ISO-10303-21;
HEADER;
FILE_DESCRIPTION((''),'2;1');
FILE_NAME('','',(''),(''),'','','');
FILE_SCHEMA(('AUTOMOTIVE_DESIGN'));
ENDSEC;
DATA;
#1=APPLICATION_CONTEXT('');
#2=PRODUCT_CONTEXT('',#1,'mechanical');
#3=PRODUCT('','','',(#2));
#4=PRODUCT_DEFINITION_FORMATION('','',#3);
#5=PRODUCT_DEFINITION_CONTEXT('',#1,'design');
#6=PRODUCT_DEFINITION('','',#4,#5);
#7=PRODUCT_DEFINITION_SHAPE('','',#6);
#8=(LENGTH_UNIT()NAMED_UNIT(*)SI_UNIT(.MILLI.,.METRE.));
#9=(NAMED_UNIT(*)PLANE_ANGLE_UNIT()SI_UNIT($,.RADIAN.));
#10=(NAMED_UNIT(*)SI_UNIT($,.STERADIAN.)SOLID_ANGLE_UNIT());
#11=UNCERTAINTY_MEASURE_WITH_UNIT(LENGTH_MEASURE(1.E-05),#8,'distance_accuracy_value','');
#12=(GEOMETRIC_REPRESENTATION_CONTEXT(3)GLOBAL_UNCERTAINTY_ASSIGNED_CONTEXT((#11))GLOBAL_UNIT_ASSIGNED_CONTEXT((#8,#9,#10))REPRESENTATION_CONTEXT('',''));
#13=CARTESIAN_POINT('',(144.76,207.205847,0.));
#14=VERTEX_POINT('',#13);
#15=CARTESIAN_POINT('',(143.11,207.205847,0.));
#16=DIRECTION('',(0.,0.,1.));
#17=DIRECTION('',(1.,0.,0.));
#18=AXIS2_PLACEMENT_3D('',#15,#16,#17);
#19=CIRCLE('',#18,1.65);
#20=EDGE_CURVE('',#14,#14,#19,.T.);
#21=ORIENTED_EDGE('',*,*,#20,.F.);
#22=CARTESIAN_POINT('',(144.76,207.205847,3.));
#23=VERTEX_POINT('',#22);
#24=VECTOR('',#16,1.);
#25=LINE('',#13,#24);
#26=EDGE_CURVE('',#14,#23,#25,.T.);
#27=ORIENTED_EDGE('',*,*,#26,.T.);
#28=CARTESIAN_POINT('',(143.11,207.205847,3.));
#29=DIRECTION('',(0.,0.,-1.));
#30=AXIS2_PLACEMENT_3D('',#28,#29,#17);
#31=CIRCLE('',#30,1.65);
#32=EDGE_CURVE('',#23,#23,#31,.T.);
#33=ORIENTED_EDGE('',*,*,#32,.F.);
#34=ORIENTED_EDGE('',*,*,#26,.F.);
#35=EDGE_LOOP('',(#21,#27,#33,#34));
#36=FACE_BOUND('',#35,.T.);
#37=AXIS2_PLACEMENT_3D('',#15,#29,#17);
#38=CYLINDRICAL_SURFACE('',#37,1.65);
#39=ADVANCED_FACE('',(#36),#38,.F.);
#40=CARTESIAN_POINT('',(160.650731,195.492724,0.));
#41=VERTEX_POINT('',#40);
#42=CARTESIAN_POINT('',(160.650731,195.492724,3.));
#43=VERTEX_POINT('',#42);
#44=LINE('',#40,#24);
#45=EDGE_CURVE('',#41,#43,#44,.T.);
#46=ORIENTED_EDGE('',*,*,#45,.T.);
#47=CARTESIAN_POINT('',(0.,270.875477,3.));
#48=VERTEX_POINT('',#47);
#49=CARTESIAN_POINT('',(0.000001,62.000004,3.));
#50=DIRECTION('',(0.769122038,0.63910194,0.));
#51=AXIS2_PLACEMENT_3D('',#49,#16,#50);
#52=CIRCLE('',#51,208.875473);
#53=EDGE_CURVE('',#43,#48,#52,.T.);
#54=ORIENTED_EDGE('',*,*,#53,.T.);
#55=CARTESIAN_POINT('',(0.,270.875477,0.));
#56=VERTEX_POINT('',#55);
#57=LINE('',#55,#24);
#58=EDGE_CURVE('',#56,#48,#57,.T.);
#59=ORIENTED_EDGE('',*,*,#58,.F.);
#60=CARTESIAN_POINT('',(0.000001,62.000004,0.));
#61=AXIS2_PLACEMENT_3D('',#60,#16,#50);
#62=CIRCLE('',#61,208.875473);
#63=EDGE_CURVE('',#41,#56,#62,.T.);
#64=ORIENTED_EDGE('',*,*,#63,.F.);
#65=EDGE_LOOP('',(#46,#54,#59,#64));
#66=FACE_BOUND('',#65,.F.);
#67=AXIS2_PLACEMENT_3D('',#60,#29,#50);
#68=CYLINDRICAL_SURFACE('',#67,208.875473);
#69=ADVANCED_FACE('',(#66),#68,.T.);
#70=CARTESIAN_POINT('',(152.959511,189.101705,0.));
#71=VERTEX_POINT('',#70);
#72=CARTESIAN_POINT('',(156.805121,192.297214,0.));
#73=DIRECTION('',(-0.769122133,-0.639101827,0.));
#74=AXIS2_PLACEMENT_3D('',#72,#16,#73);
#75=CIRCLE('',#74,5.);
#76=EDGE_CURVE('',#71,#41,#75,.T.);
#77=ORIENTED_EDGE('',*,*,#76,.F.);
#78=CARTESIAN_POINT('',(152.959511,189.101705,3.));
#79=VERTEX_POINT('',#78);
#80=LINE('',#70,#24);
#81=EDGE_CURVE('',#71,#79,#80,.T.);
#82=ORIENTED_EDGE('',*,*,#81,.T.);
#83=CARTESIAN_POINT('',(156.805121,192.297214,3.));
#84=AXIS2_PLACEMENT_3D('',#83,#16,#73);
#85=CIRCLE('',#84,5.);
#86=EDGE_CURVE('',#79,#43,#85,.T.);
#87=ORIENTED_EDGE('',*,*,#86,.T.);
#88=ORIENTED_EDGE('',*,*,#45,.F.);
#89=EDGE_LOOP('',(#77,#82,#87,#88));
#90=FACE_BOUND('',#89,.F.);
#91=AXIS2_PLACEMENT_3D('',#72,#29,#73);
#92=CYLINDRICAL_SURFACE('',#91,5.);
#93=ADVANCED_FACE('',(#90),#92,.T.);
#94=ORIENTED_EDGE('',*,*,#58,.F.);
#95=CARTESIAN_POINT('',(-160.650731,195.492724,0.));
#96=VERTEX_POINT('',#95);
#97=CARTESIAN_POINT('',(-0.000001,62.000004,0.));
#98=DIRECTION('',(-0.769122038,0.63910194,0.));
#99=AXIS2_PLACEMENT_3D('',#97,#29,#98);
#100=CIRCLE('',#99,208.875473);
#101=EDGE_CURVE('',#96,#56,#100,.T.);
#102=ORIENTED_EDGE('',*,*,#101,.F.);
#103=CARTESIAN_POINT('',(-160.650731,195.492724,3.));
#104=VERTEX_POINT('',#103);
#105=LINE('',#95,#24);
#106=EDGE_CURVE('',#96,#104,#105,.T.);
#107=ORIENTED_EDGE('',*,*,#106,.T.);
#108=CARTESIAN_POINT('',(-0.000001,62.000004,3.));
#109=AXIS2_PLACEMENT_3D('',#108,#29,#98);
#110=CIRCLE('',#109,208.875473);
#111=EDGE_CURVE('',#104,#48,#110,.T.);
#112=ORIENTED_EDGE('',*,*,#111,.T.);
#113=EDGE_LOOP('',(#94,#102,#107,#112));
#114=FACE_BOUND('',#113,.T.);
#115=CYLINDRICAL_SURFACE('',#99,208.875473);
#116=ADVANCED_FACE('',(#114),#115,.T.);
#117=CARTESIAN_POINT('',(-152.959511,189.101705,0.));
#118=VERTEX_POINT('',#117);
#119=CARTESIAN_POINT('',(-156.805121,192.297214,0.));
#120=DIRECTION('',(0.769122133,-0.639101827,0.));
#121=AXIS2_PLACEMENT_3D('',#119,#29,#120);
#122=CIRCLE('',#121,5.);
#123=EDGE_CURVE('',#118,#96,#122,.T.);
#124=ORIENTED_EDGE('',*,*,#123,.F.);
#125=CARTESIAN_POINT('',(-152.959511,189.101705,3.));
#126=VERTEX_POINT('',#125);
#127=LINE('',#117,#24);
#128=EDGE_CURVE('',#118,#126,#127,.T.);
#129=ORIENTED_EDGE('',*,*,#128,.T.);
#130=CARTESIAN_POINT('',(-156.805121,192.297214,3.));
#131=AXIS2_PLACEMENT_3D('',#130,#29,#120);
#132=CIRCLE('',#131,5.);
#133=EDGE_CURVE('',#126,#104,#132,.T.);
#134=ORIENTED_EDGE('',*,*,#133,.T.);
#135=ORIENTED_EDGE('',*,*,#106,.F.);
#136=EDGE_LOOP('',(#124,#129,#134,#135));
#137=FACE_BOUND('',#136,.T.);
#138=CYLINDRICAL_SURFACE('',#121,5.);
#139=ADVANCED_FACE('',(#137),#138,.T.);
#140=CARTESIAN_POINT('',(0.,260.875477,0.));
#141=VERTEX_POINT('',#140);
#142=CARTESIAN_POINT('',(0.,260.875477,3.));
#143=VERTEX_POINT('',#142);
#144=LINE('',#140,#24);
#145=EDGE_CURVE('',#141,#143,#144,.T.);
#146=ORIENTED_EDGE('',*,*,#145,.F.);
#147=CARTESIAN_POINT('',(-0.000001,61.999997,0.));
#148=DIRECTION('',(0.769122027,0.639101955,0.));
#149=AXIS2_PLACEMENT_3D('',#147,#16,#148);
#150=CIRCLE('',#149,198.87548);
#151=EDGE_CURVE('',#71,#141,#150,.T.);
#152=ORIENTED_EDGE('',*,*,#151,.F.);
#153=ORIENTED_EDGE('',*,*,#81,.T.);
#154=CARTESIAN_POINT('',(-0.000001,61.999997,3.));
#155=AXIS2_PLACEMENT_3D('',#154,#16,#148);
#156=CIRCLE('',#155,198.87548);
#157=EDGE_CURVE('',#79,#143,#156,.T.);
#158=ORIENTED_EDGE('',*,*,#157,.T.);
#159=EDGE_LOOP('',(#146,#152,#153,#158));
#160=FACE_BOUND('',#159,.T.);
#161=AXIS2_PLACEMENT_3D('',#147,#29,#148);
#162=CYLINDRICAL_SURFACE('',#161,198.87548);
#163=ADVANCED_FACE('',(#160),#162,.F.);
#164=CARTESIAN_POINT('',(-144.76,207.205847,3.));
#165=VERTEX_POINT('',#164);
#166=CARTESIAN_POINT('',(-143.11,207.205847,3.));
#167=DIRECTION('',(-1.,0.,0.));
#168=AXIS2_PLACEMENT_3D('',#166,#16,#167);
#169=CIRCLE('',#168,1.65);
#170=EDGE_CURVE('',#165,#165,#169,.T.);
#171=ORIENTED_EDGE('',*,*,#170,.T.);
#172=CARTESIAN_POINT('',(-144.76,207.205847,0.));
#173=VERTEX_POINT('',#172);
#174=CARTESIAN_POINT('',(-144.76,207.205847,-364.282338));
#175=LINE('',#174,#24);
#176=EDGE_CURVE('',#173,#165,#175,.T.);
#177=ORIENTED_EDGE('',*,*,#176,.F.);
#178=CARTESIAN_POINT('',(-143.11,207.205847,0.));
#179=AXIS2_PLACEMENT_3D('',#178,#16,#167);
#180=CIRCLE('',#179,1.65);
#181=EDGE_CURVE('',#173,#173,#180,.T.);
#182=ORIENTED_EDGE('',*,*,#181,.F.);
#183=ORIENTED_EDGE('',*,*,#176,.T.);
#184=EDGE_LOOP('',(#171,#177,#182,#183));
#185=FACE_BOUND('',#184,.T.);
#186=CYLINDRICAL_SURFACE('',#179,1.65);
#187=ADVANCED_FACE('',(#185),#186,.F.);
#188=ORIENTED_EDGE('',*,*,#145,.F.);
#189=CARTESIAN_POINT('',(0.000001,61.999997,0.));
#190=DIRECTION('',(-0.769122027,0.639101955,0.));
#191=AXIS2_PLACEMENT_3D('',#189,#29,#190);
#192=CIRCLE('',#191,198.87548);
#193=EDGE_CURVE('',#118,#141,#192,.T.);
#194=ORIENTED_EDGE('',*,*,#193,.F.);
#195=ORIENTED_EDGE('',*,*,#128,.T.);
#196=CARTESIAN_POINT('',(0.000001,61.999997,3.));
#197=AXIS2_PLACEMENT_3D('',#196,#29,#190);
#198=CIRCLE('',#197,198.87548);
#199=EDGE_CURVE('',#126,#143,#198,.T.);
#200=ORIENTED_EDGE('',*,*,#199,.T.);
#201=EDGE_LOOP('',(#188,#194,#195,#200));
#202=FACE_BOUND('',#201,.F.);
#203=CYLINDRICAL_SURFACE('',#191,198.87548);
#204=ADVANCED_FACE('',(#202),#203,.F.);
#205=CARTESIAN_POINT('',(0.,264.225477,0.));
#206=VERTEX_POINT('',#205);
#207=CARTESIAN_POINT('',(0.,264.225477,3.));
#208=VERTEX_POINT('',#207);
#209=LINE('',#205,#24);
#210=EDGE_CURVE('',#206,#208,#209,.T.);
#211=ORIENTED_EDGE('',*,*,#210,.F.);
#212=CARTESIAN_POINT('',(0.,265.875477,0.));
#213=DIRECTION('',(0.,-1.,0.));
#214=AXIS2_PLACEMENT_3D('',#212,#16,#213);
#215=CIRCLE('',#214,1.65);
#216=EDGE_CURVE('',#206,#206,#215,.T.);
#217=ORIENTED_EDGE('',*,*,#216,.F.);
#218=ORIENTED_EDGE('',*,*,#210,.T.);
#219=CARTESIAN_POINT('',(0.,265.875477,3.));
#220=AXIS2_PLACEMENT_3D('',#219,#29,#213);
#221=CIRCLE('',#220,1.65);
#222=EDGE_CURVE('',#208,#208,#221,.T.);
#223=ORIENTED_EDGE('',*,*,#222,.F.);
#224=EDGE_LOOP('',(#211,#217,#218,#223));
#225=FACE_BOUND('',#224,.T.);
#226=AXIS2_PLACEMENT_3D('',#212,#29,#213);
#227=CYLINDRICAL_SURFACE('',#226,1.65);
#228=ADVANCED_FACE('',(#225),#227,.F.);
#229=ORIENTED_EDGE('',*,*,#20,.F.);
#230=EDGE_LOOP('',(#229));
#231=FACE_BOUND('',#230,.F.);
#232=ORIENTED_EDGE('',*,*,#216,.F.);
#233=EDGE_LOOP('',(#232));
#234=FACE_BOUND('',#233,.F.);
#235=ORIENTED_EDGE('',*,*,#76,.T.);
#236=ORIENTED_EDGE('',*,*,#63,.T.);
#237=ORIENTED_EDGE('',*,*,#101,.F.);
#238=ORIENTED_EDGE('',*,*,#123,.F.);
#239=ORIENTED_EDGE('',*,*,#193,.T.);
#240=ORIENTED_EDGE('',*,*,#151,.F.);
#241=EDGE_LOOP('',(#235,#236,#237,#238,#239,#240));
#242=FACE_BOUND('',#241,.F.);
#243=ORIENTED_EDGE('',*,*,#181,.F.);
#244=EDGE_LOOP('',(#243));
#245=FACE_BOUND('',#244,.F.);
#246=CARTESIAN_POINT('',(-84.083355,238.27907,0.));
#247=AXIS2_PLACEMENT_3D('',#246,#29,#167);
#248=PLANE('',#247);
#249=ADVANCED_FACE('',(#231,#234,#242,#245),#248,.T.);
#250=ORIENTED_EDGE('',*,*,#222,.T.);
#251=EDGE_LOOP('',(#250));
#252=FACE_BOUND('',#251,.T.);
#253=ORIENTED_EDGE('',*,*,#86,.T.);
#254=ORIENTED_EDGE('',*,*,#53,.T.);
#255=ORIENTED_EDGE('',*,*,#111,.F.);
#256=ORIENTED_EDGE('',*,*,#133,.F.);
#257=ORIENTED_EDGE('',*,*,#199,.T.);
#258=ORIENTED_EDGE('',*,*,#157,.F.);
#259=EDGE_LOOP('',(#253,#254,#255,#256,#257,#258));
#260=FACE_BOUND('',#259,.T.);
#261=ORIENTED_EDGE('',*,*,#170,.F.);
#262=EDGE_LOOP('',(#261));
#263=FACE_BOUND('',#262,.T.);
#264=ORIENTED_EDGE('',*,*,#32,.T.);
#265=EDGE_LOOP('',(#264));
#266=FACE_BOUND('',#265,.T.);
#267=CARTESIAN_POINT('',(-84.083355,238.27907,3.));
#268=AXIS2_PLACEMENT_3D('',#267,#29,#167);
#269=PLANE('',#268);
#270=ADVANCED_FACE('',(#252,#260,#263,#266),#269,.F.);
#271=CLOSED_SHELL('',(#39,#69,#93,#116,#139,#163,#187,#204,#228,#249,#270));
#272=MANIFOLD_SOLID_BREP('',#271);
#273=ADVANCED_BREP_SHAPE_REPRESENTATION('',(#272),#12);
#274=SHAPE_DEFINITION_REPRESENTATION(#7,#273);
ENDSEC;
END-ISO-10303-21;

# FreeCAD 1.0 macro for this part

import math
import FreeCAD as App
import Part
import Sketcher
from FreeCAD import Vector
Q = App.Units.Quantity

doc = App.newDocument("Part")
body = doc.addObject("PartDesign::Body", "Body")

# Sketch on XY plane
sketch1 = body.newObject("Sketcher::SketchObject", "Sketch")
sketch1.AttachmentSupport = (doc.getObject("XY_Plane"), [""])
sketch1.MapMode = "FlatFace"
sketch1.addGeometry(Part.ArcOfCircle(Part.Circle(Vector(-0.000001, -0.000003, 0), Vector(0, 0, 1), 198.87548), math.radians(39.724887), math.radians(90)), False)
sketch1.addGeometry(Part.ArcOfCircle(Part.Circle(Vector(156.805121, 130.297214, 0), Vector(0, 0, 1), 5), math.radians(-140.275122), math.radians(39.724894)), False)
sketch1.addGeometry(Part.ArcOfCircle(Part.Circle(Vector(0.000001, 0.000004, 0), Vector(0, 0, 1), 208.875473), math.radians(39.724886), math.radians(90)), False)
sketch1.addGeometry(Part.LineSegment(Vector(0, 208.875477, 0), Vector(0, 198.875477, 0)), False)
sketch1.addConstraint(Sketcher.Constraint("Tangent", 0, 1, 1, 1))
sketch1.addConstraint(Sketcher.Constraint("Tangent", 1, 2, 2, 1))
sketch1.addConstraint(Sketcher.Constraint("Coincident", 2, 2, 3, 1))
sketch1.addConstraint(Sketcher.Constraint("Coincident", 3, 2, 0, 2))
sketch1.addConstraint(Sketcher.Constraint("Vertical", 3))
sketch1.addConstraint(Sketcher.Constraint("Coincident", 0, 3, -1, 1))
sketch1.addConstraint(Sketcher.Constraint("Coincident", 2, 3, -1, 1))
sketch1.addConstraint(Sketcher.Constraint("PointOnObject", 2, 2, -2))
sketch1.addConstraint(Sketcher.Constraint("Radius", 1, Q("5 mm")))
sketch1.addConstraint(Sketcher.Constraint("Radius", 0, Q("198.87548 mm")))
sketch1.addConstraint(Sketcher.Constraint("DistanceY", 2, 3, 0, 1, Q("127.101701 mm")))
pad1 = body.newObject("PartDesign::Pad", "Pad")
pad1.Profile = sketch1
pad1.Length = 3

# Sketch on XY plane
sketch2 = body.newObject("Sketcher::SketchObject", "Sketch001")
sketch2.AttachmentSupport = (doc.getObject("XY_Plane"), [""])
sketch2.MapMode = "FlatFace"
sketch2.addGeometry(Part.Circle(Vector(143.11, 145.205847, 0), Vector(0, 0, 1), 1.65), False)
sketch2.addGeometry(Part.LineSegment(Vector(0, 205.525477, 0), Vector(0, 202.225477, 0)), False)
sketch2.addGeometry(Part.ArcOfCircle(Part.Circle(Vector(0, 203.875477, 0), Vector(0, 0, 1), 1.65), math.radians(-90), math.radians(90)), False)
sketch2.addConstraint(Sketcher.Constraint("Coincident", 1, 1, 2, 2))
sketch2.addConstraint(Sketcher.Constraint("Coincident", 2, 1, 1, 2))
sketch2.addConstraint(Sketcher.Constraint("Vertical", 1))
sketch2.addConstraint(Sketcher.Constraint("Equal", 0, 2))
sketch2.addConstraint(Sketcher.Constraint("PointOnObject", 2, 3, -2))
sketch2.addConstraint(Sketcher.Constraint("PointOnObject", 1, 1, -2))
sketch2.addConstraint(Sketcher.Constraint("Diameter", 0, Q("3.3 mm")))
sketch2.addConstraint(Sketcher.Constraint("DistanceX", -1, 1, 0, 3, Q("143.11 mm")))
sketch2.addConstraint(Sketcher.Constraint("DistanceY", 0, 3, 2, 3, Q("58.66963 mm")))
sketch2.addConstraint(Sketcher.Constraint("DistanceY", -1, 1, 0, 3, Q("145.205847 mm")))
pocket1 = body.newObject("PartDesign::Pocket", "Pocket")
pocket1.Profile = sketch2
pocket1.Type = "ThroughAll"
pocket1.Midplane = True
doc.recompute()

mirrored = body.newObject("PartDesign::Mirrored", "Mirrored")
mirrored.Originals = [pad1, pocket1]
mirrored.MirrorPlane = (doc.getObject("YZ_Plane"), [""])
body.Tip = mirrored
body2 = doc.addObject("PartDesign::Body", "Body001")
doc.recompute()

body.Placement = App.Placement(Vector(0, 0, 0), App.Rotation(Vector(0, 0, 1), 60))
boolean = body2.newObject("PartDesign::Boolean", "Boolean")
boolean.Type = "Fuse"
boolean.addObjects([body])
body3 = doc.addObject("PartDesign::Body", "Body002")
doc.recompute()

body2.Placement = App.Placement(Vector(0, 62, 0), App.Rotation(Vector(0, 0, -1), 60))
boolean2 = body3.newObject("PartDesign::Boolean", "Boolean001")
boolean2.Type = "Fuse"
boolean2.addObjects([body2])

doc.recompute()
